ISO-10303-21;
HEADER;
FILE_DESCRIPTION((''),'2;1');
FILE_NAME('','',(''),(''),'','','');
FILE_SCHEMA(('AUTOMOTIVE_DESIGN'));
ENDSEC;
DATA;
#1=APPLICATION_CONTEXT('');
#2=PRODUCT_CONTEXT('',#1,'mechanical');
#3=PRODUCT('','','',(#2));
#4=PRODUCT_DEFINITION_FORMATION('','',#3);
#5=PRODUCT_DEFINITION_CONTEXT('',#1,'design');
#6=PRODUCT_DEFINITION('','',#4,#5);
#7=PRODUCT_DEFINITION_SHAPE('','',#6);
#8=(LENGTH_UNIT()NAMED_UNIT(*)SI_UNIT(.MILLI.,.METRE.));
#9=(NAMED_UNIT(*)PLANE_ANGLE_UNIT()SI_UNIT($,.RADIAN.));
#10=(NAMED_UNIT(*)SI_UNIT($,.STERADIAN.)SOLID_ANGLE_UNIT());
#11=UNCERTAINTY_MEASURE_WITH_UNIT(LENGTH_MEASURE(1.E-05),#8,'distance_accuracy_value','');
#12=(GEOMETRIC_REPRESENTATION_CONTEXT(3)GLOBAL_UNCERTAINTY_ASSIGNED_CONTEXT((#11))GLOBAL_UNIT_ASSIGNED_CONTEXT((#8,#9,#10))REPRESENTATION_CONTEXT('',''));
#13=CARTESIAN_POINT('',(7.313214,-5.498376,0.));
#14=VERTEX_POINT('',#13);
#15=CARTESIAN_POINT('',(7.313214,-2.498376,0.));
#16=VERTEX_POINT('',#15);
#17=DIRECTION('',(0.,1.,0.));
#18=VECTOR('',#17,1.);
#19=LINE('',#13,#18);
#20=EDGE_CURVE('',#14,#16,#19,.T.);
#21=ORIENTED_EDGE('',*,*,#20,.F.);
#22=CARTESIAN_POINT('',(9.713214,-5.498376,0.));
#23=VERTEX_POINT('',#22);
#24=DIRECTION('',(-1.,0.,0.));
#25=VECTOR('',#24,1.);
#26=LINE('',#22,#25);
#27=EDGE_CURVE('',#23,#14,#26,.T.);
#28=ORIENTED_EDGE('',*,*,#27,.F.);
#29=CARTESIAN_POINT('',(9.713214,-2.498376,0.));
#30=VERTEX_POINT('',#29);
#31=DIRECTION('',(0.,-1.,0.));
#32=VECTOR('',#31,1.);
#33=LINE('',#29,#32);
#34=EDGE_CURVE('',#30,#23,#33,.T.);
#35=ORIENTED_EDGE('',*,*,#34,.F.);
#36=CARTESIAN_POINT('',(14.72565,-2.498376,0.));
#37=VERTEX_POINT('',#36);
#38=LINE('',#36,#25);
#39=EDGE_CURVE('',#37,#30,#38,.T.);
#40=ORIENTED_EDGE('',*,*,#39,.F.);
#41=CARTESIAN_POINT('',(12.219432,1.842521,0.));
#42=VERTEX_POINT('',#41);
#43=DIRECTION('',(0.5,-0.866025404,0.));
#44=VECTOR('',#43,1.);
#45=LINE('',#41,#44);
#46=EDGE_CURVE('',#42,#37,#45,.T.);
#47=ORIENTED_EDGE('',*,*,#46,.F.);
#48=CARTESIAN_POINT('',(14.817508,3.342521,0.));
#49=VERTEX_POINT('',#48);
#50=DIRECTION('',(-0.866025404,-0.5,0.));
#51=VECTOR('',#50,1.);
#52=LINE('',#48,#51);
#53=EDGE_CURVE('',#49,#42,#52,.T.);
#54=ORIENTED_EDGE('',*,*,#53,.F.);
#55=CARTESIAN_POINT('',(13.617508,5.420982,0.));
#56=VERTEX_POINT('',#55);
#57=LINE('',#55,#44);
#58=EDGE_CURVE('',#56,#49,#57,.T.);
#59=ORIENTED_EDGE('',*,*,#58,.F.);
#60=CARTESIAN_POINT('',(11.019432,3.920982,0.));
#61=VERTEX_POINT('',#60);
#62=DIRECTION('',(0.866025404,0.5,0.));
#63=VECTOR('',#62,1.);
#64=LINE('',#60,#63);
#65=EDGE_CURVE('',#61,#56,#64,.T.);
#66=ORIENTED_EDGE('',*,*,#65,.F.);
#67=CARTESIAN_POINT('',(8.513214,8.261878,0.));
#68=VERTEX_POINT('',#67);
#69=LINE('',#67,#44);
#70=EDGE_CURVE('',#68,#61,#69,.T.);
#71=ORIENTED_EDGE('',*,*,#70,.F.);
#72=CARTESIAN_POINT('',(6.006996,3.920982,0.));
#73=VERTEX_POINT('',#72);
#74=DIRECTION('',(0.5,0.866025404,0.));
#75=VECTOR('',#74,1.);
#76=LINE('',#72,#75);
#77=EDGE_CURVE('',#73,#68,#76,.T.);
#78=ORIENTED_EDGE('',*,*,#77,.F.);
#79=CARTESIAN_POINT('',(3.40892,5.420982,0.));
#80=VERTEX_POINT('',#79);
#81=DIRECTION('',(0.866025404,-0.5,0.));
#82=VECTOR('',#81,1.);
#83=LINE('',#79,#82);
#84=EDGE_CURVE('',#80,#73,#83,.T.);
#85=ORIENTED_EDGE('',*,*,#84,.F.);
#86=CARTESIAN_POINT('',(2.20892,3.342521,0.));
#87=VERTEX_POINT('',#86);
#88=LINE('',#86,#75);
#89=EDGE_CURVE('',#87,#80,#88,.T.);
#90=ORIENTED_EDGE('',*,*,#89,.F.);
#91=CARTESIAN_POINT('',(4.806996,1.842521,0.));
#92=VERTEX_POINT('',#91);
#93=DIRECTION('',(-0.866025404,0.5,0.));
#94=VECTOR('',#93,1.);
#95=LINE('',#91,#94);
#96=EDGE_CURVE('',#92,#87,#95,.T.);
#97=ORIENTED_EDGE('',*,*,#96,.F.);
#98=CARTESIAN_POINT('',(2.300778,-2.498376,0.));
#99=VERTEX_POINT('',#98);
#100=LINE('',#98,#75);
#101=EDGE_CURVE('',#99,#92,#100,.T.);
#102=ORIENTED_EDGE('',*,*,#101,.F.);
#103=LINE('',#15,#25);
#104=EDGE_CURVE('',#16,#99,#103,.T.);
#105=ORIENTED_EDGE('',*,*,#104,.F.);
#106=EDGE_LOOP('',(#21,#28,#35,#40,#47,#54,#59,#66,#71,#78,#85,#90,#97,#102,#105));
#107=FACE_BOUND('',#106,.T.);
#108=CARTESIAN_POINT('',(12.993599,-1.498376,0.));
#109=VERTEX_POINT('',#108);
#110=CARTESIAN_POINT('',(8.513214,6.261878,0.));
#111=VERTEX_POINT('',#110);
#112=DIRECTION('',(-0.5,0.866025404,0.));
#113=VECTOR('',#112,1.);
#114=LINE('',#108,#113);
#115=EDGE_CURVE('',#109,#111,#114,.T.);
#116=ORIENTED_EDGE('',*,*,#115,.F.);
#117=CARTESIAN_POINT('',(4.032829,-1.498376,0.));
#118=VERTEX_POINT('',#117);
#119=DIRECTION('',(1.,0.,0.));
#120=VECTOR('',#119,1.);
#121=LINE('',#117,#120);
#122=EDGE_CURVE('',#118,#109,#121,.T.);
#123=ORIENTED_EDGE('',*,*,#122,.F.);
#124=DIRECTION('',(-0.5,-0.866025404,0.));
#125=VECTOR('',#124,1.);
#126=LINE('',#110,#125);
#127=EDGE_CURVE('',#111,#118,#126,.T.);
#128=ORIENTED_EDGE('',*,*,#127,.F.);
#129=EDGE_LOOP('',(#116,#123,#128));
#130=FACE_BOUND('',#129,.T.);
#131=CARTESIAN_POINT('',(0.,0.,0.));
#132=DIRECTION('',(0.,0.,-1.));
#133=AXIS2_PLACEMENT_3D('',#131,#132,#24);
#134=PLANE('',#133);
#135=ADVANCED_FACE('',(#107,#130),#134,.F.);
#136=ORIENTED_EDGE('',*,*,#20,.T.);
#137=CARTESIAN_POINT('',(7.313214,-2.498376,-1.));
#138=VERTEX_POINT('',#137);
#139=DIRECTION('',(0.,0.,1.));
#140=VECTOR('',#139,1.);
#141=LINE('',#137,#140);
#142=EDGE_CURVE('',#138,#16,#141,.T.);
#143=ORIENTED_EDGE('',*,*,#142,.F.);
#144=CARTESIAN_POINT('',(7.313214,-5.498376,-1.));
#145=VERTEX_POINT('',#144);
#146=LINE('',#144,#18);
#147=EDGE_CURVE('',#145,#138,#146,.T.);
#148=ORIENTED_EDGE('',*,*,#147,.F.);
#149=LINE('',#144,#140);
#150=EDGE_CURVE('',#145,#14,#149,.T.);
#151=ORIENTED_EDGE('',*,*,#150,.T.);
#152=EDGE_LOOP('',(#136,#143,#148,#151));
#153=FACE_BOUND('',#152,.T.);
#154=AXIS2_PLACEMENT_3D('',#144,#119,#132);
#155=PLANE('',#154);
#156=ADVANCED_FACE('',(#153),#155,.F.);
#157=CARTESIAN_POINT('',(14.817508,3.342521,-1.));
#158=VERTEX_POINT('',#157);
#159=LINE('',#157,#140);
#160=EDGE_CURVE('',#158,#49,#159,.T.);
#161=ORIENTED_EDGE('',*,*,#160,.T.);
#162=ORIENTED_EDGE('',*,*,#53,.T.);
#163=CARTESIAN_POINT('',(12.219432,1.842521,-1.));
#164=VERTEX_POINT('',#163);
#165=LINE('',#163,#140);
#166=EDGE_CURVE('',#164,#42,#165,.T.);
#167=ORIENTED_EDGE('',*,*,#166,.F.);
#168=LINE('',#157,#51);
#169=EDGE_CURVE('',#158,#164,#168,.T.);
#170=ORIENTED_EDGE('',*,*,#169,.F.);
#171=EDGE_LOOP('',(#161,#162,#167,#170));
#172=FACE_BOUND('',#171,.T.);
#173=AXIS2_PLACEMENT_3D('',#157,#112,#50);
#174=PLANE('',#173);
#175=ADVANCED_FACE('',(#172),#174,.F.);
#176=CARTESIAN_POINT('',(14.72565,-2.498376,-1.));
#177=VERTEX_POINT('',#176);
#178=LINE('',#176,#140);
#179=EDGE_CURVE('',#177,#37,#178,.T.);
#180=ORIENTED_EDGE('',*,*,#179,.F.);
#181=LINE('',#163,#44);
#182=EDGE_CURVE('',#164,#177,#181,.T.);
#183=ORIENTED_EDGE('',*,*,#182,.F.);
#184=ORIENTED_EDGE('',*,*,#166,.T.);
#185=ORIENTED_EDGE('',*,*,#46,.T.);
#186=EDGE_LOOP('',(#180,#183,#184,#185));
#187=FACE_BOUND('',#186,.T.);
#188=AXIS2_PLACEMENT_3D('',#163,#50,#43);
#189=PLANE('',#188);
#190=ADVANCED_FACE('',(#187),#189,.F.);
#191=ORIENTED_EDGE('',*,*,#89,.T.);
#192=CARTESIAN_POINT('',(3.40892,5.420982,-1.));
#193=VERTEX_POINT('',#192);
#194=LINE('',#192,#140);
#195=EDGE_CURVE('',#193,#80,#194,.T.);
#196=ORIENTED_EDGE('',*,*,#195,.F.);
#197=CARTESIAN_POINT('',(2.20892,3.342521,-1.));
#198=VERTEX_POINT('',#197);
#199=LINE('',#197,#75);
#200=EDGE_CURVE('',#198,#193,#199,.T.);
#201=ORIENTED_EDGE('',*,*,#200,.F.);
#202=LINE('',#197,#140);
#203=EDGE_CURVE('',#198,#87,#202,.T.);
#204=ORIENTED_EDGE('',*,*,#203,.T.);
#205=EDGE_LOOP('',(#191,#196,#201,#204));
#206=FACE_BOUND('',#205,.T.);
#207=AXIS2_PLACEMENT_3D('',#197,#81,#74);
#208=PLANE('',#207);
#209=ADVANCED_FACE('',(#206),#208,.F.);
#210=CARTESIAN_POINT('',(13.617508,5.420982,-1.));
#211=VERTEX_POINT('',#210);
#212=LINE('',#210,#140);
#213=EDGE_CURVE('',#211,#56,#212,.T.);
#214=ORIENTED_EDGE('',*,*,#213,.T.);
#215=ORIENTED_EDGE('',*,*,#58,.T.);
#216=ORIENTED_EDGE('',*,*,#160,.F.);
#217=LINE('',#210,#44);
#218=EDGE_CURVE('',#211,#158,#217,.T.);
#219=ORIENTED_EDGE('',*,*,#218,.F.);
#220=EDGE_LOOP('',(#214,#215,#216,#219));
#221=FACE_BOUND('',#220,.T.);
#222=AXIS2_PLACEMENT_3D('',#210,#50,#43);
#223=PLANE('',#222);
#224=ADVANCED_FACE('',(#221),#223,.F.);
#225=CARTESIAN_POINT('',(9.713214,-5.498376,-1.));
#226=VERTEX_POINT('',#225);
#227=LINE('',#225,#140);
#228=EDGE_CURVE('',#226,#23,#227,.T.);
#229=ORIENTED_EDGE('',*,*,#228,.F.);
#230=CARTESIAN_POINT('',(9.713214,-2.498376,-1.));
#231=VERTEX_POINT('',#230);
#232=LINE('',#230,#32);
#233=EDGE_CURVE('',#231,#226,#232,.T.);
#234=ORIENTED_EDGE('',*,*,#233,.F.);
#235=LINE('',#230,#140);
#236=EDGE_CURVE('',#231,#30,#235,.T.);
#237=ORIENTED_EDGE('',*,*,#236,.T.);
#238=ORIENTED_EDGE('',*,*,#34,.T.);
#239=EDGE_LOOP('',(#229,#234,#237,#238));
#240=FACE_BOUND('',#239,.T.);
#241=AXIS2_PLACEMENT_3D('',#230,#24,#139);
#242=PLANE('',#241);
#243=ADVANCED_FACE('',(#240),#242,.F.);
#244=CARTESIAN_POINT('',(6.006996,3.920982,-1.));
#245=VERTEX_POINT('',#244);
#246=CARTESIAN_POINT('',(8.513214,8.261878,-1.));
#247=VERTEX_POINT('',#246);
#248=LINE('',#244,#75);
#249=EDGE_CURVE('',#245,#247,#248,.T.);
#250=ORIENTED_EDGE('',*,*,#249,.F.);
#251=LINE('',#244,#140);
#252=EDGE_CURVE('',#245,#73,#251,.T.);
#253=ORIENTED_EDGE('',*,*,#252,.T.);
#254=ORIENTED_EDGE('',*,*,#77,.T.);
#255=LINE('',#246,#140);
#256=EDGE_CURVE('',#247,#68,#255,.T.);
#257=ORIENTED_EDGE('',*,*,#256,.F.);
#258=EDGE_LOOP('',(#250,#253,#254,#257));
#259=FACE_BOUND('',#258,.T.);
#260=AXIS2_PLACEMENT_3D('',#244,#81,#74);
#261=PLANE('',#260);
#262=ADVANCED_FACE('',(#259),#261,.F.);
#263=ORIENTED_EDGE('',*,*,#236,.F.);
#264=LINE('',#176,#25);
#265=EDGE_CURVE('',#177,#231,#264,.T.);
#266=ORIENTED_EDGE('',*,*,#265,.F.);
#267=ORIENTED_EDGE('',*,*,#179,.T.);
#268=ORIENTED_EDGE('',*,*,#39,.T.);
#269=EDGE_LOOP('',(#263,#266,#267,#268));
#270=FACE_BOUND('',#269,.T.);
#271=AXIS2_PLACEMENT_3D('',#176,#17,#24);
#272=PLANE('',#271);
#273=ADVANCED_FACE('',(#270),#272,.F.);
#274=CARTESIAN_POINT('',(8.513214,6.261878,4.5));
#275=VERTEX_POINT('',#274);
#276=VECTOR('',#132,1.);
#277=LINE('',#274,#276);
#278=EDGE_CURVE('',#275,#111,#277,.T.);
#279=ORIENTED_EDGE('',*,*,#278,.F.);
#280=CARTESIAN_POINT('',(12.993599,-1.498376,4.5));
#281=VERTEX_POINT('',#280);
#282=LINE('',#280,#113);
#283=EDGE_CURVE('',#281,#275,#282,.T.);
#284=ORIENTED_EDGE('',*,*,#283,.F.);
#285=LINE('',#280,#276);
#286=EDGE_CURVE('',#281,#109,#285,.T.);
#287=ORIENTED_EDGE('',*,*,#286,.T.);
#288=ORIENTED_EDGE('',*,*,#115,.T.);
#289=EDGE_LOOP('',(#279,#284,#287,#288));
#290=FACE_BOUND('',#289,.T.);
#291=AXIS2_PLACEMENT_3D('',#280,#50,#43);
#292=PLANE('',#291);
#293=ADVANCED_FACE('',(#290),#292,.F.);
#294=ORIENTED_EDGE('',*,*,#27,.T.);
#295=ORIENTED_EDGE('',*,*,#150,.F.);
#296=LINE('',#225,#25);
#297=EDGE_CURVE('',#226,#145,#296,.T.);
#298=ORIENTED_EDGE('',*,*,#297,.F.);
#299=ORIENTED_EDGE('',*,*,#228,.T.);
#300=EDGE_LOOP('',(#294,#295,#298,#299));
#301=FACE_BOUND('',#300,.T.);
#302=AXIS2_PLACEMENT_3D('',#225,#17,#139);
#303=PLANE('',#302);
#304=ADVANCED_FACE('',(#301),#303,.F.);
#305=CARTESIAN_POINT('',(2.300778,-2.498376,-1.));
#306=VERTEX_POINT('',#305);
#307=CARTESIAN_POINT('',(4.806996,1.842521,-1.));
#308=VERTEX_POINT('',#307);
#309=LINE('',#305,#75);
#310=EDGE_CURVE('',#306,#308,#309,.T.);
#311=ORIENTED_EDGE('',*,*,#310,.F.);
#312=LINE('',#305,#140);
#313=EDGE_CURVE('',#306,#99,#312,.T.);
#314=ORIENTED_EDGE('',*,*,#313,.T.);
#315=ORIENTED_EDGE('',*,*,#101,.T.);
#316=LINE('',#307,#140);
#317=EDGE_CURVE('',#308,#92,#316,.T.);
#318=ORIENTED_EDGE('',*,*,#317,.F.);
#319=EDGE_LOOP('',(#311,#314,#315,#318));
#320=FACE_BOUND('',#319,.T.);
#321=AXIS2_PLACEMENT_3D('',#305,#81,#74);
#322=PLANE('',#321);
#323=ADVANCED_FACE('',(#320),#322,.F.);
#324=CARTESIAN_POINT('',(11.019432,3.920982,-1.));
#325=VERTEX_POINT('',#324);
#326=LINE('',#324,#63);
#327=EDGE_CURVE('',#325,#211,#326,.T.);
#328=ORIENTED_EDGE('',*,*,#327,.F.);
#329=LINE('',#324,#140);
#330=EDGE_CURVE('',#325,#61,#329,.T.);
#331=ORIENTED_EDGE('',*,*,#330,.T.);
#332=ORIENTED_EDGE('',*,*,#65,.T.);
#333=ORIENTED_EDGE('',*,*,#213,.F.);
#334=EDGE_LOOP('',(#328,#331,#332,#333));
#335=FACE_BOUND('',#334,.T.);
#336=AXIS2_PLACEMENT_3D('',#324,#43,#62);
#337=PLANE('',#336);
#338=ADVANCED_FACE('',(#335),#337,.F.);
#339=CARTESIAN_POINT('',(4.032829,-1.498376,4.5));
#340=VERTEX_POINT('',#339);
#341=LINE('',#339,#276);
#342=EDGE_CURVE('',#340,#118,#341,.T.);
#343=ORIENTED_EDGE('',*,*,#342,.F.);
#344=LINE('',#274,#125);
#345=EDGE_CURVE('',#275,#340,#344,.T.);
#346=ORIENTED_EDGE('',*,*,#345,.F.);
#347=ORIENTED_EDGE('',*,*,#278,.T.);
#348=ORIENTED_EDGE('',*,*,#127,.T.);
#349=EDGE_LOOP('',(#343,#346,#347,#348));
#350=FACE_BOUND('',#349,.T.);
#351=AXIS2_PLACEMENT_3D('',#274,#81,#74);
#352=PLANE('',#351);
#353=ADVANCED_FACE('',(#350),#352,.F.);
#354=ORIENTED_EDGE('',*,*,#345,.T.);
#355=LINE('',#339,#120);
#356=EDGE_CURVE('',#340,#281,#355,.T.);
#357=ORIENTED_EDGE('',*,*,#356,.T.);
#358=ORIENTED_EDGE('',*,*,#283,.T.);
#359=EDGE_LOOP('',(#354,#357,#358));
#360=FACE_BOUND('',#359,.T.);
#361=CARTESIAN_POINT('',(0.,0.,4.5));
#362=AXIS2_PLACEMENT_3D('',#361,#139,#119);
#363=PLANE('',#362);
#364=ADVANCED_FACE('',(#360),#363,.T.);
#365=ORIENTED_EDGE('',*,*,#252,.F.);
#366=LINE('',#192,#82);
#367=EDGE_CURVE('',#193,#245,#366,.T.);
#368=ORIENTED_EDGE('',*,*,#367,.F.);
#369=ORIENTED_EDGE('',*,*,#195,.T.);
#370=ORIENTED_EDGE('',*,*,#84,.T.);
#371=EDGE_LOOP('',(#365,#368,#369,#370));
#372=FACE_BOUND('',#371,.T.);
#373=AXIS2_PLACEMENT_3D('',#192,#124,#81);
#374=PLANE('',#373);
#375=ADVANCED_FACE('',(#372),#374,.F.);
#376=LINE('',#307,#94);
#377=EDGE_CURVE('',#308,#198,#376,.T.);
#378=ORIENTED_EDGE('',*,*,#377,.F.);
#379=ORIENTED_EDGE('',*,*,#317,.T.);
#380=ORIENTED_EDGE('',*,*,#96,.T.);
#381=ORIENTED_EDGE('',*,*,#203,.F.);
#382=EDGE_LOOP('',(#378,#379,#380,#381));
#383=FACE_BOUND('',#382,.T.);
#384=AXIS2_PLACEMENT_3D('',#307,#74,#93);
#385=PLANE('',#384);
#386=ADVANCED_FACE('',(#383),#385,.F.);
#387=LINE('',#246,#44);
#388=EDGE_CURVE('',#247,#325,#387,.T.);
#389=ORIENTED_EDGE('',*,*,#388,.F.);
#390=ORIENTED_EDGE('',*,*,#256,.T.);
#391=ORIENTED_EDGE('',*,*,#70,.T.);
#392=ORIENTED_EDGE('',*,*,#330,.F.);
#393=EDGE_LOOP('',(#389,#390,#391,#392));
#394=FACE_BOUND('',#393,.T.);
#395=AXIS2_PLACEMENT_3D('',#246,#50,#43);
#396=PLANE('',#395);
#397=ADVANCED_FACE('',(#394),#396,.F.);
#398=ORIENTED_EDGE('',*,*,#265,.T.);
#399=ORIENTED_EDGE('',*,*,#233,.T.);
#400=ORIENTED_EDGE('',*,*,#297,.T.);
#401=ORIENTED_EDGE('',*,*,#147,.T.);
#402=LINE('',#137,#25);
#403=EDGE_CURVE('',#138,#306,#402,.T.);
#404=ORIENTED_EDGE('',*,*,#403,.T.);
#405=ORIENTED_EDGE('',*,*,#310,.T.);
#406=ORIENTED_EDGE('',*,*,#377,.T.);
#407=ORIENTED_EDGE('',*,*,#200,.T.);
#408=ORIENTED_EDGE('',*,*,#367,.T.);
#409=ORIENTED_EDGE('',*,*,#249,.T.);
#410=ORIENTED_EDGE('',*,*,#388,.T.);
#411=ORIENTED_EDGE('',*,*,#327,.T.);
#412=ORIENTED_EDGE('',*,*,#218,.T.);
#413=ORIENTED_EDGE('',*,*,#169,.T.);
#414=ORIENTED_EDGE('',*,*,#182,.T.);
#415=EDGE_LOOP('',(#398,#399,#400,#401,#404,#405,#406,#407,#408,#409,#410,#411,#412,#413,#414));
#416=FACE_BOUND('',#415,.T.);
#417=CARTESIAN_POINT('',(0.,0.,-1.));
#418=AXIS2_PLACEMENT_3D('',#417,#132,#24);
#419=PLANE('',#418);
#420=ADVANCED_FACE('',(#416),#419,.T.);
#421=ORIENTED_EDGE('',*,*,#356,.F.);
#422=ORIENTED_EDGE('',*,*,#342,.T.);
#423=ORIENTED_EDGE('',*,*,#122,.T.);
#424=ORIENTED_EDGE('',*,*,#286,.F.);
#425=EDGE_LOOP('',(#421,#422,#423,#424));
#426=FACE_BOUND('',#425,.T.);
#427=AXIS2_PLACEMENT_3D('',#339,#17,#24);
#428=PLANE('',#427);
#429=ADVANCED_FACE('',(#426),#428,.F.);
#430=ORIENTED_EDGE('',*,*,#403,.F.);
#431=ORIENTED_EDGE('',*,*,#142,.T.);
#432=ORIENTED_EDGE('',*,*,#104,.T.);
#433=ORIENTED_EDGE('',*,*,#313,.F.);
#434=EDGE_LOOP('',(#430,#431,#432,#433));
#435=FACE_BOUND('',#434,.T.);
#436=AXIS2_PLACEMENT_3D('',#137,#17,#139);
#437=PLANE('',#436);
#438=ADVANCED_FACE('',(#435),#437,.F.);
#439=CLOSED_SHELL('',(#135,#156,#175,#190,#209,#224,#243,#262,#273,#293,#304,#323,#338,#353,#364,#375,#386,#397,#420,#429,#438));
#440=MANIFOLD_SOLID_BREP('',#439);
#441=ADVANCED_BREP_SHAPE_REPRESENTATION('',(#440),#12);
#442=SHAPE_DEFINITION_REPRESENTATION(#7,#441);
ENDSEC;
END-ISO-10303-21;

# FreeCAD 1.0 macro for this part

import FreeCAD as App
import Part
import Sketcher
from FreeCAD import Vector
Q = App.Units.Quantity


def add_polygon(sketch, points):
    """Adds a closed chain of lines whose ends are joined by coincident constraints."""
    first, n = sketch.GeometryCount, len(points)
    for a, b in zip(points, points[1:] + points[:1]):
        sketch.addGeometry(Part.LineSegment(App.Vector(*a, 0), App.Vector(*b, 0)), False)
    for i in range(n):
        sketch.addConstraint(Sketcher.Constraint("Coincident", first + i, 2, first + (i + 1) % n, 1))

doc = App.newDocument("Part")
body = doc.addObject("PartDesign::Body", "Body")

# Sketch on XY plane
sketch1 = body.newObject("Sketcher::SketchObject", "Sketch")
sketch1.AttachmentSupport = (doc.getObject("XY_Plane"), [""])
sketch1.MapMode = "FlatFace"
add_polygon(sketch1, [(4, -1), (13, -1), (9, 6)])  # lines 0-2
sketch1.addConstraint([
    Sketcher.Constraint("Horizontal", 0),
    Sketcher.Constraint("Equal", 1, 2),
    Sketcher.Constraint("Angle", 1, Q("120 deg")),
    Sketcher.Constraint("DistanceX", 0, 1, 0, 2, Q("8.96077 mm")),
    Sketcher.Constraint("DistanceX", -1, 1, 0, 2, Q("12.993599 mm")),
    Sketcher.Constraint("DistanceY", -1, 1, 1, 2, Q("6.261878 mm")),
])
pad1 = body.newObject("PartDesign::Pad", "Pad")
pad1.Profile = sketch1
pad1.Length = 4.5

# Sketch on XY plane
sketch2 = body.newObject("Sketcher::SketchObject", "Sketch001")
sketch2.AttachmentSupport = (doc.getObject("XY_Plane"), [""])
sketch2.MapMode = "FlatFace"
add_polygon(sketch2, [(14.8, 3.3), (12.2, 1.8), (14.7, -2.5), (9.7, -2.5), (9.7, -5.5), (7.3, -5.5), (7.3, -2.5), (2.3, -2.5), (4.8, 1.8), (2.2, 3.3), (3.4, 5.4), (6, 3.9), (8.5, 8.3), (11, 3.9), (13.6, 5.4)])  # lines 0-14
sketch2.addConstraint([
    Sketcher.Constraint("Horizontal", 2),
    Sketcher.Constraint("Vertical", 3),
    Sketcher.Constraint("Horizontal", 4),
    Sketcher.Constraint("Vertical", 5),
    Sketcher.Constraint("Horizontal", 6),
    Sketcher.Constraint("Perpendicular", 0, 1),
    Sketcher.Constraint("Perpendicular", 7, 8),
    Sketcher.Constraint("Perpendicular", 8, 9),
    Sketcher.Constraint("Perpendicular", 9, 10),
    Sketcher.Constraint("Perpendicular", 10, 11),
    Sketcher.Constraint("Parallel", 1, 12),
    Sketcher.Constraint("Perpendicular", 12, 13),
    Sketcher.Constraint("Perpendicular", 13, 14),
    Sketcher.Constraint("Horizontal", 2, 2, 5, 2),
    Sketcher.Constraint("Horizontal", 0, 2, 7, 2),
    Sketcher.Constraint("Horizontal", 10, 2, 12, 2),
    Sketcher.Constraint("Horizontal", 9, 2, 13, 2),
    Sketcher.Constraint("Horizontal", 8, 2, 14, 2),
    Sketcher.Constraint("Equal", 2, 6),
    Sketcher.Constraint("Equal", 1, 7),
    Sketcher.Constraint("Equal", 8, 10),
    Sketcher.Constraint("Equal", 7, 11),
    Sketcher.Constraint("DistanceY", 3, 2, 3, 1, Q("3 mm")),
    Sketcher.Constraint("Angle", 0, Q("-150 deg")),
    Sketcher.Constraint("Distance", 0, Q("3 mm")),
    Sketcher.Constraint("DistanceX", 4, 2, 4, 1, Q("2.4 mm")),
    Sketcher.Constraint("Distance", 9, Q("2.4 mm")),
    Sketcher.Constraint("DistanceX", 2, 2, 2, 1, Q("5.012436 mm")),
    Sketcher.Constraint("DistanceX", -1, 1, 0, 2, Q("12.219432 mm")),
    Sketcher.Constraint("DistanceY", -1, 1, 0, 2, Q("1.842521 mm")),
])
pad2 = body.newObject("PartDesign::Pad", "Pad001")
pad2.Profile = sketch2
pad2.Length = 1
pad2.Reversed = True

doc.recompute()
